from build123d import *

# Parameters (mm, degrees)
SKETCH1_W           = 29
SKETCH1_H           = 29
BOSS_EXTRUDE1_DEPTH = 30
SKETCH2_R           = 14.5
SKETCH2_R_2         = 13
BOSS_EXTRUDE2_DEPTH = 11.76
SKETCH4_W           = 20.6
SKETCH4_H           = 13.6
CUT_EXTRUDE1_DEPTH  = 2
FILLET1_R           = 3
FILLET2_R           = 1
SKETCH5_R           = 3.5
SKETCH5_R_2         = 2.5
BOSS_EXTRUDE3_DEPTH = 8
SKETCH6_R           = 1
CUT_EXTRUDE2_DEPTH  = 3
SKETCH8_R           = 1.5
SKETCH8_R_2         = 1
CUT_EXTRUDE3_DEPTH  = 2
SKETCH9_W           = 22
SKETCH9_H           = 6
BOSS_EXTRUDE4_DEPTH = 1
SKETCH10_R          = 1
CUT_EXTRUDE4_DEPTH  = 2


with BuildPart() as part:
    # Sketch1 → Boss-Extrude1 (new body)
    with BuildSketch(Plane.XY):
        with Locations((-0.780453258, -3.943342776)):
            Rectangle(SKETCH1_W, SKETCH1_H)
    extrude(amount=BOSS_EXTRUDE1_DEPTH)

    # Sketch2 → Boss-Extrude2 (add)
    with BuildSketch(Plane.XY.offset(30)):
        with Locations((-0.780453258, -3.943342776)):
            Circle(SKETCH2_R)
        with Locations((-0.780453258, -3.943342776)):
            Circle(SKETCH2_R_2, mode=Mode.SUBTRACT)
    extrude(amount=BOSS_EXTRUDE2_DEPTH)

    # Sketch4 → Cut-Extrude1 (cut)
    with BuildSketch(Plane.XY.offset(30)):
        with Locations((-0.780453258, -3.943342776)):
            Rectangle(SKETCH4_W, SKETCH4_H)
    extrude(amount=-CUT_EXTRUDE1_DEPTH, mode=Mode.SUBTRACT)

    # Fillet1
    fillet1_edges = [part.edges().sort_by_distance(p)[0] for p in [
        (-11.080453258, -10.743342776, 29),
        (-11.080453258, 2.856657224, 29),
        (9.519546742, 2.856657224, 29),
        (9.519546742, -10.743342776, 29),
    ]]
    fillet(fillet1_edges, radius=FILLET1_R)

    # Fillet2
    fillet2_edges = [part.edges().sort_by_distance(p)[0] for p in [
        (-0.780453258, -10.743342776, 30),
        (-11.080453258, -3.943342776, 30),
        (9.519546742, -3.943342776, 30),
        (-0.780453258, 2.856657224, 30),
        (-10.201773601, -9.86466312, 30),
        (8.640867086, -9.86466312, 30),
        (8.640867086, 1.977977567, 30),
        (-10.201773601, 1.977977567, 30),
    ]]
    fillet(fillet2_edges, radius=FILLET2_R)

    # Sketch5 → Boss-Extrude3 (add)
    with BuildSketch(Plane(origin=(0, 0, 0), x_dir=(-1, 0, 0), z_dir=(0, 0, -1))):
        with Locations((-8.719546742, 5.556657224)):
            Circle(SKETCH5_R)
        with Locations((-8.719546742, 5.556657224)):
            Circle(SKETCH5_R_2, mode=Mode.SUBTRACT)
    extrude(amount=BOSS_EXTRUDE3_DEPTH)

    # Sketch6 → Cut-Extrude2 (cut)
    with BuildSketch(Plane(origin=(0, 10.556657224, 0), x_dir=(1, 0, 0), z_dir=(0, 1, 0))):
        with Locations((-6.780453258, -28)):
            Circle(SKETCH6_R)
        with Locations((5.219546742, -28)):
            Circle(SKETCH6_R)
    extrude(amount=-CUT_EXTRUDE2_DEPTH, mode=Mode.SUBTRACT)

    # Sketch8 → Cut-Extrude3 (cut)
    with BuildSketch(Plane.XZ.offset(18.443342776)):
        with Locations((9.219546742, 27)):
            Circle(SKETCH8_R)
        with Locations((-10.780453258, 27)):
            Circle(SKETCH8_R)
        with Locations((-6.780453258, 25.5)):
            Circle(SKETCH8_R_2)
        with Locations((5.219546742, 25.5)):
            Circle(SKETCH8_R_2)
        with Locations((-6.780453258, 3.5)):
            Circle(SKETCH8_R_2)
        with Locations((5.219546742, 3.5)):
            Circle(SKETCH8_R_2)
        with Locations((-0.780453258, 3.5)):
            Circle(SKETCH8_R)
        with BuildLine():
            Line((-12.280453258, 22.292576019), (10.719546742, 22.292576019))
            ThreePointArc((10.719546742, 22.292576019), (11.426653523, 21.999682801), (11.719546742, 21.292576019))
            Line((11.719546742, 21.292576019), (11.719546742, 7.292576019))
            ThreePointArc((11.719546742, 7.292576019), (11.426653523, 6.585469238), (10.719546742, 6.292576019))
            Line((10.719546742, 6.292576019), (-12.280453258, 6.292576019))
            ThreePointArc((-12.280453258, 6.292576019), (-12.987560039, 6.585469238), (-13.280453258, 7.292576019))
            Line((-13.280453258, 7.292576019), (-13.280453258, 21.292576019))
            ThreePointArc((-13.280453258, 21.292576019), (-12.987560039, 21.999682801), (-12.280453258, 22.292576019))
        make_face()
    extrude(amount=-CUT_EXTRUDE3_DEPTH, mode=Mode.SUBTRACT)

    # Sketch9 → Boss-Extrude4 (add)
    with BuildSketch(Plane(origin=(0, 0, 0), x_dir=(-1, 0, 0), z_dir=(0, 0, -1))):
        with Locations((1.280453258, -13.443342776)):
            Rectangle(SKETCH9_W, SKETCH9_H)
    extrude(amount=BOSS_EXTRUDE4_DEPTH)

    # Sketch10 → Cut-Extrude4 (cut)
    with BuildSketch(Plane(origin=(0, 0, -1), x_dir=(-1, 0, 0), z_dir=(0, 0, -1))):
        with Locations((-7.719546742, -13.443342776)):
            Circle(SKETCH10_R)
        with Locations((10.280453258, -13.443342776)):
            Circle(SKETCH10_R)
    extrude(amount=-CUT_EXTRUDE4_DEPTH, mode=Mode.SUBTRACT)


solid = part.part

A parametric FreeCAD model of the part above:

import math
import FreeCAD as App
import Part
import Sketcher

V = App.Vector
Q = App.Units.Quantity


def edges_at(feature, points):
    """Names of the edges that pass closest to the given points."""
    edges = feature.Shape.Edges
    near = lambda p: min(range(len(edges)), key=lambda i: edges[i].distToShape(Part.Vertex(*p))[0])
    return sorted({f"Edge{near(p) + 1}" for p in points})

doc = App.newDocument("Part")
params = doc.addObject("Spreadsheet::Sheet", "Params")
for row, (alias, value) in enumerate([
    ("sketch1_width", "29 mm"),
    ("pad1_length", "30 mm"),
    ("sketch2_diameter", "29 mm"),
    ("sketch2_diameter2", "26 mm"),
    ("pad2_length", "11.76 mm"),
    ("sketch3_width", "20.6 mm"),
    ("sketch3_height", "13.6 mm"),
    ("pocket1_length", "2 mm"),
    ("fillet_radius", "3 mm"),
    ("fillet2_radius", "1 mm"),
    ("sketch4_diameter", "7 mm"),
    ("sketch4_diameter2", "5 mm"),
    ("pad3_length", "8 mm"),
    ("sketch5_diameter", "2 mm"),
    ("pocket2_length", "3 mm"),
    ("sketch6_diameter", "3 mm"),
    ("sketch6_diameter2", "2 mm"),
    ("sketch6_width", "23 mm"),
    ("sketch6_height", "14 mm"),
    ("pocket3_length", "2 mm"),
    ("sketch7_width", "22 mm"),
    ("sketch7_height", "6 mm"),
    ("pad4_length", "1 mm"),
    ("sketch8_diameter", "2 mm"),
    ("pocket4_length", "2 mm"),
], start=1):
    params.set(f"A{row}", alias)
    params.set(f"B{row}", "=" + value)
    params.setAlias(f"B{row}", alias)

body = doc.addObject("PartDesign::Body", "Body")

# Sketch on XY plane
sketch1 = body.newObject("Sketcher::SketchObject", "Sketch")
sketch1.AttachmentSupport = (doc.getObject("XY_Plane"), [""])
sketch1.MapMode = "FlatFace"
sketch1.addGeometry(Part.LineSegment(V(-15.280453, 10.556657, 0), V(-15.280453, -18.443343, 0)), False)
sketch1.addGeometry(Part.LineSegment(V(-15.280453, -18.443343, 0), V(13.719547, -18.443343, 0)), False)
sketch1.addGeometry(Part.LineSegment(V(13.719547, -18.443343, 0), V(13.719547, 10.556657, 0)), False)
sketch1.addGeometry(Part.LineSegment(V(13.719547, 10.556657, 0), V(-15.280453, 10.556657, 0)), False)
sketch1.addConstraint(Sketcher.Constraint("Coincident", 0, 2, 1, 1))
sketch1.addConstraint(Sketcher.Constraint("Coincident", 1, 2, 2, 1))
sketch1.addConstraint(Sketcher.Constraint("Coincident", 2, 2, 3, 1))
sketch1.addConstraint(Sketcher.Constraint("Coincident", 3, 2, 0, 1))
sketch1.addConstraint(Sketcher.Constraint("Vertical", 0))
sketch1.addConstraint(Sketcher.Constraint("Horizontal", 1))
sketch1.addConstraint(Sketcher.Constraint("Vertical", 2))
sketch1.addConstraint(Sketcher.Constraint("Horizontal", 3))
sketch1.addConstraint(Sketcher.Constraint("Equal", 3, 0))
sketch1.addConstraint(Sketcher.Constraint("DistanceX", 1, 1, 1, 2, Q("29 mm")))
sketch1.addConstraint(Sketcher.Constraint("DistanceX", 0, 2, -1, 1, Q("15.280453 mm")))
sketch1.addConstraint(Sketcher.Constraint("DistanceY", 0, 2, -1, 1, Q("18.443343 mm")))
sketch1.setExpression("Constraints[9]", "Params.sketch1_width")
pad1 = body.newObject("PartDesign::Pad", "Pad")
pad1.Profile = sketch1
pad1.setExpression("Length", "Params.pad1_length")

# Sketch on XY plane
sketch2 = body.newObject("Sketcher::SketchObject", "Sketch001")
sketch2.AttachmentSupport = (doc.getObject("XY_Plane"), [""])
sketch2.MapMode = "FlatFace"
sketch2.AttachmentOffset = App.Placement(V(0, 0, 30), App.Rotation())
sketch2.addGeometry(Part.Circle(V(-0.780453, -3.943343, 0), V(0, 0, 1), 14.5), False)
sketch2.addGeometry(Part.Circle(V(-0.780453, -3.943343, 0), V(0, 0, 1), 13), False)
sketch2.addConstraint(Sketcher.Constraint("Coincident", 1, 3, 0, 3))
sketch2.addConstraint(Sketcher.Constraint("Diameter", 0, Q("29 mm")))
sketch2.addConstraint(Sketcher.Constraint("Diameter", 1, Q("26 mm")))
sketch2.addConstraint(Sketcher.Constraint("DistanceX", 0, 3, -1, 1, Q("0.780453 mm")))
sketch2.addConstraint(Sketcher.Constraint("DistanceY", 0, 3, -1, 1, Q("3.943343 mm")))
sketch2.setExpression("Constraints[1]", "Params.sketch2_diameter")
sketch2.setExpression("Constraints[2]", "Params.sketch2_diameter2")
pad2 = body.newObject("PartDesign::Pad", "Pad001")
pad2.Profile = sketch2
pad2.setExpression("Length", "Params.pad2_length")

# Sketch on XY plane
sketch3 = body.newObject("Sketcher::SketchObject", "Sketch002")
sketch3.AttachmentSupport = (doc.getObject("XY_Plane"), [""])
sketch3.MapMode = "FlatFace"
sketch3.AttachmentOffset = App.Placement(V(0, 0, 30), App.Rotation())
sketch3.addGeometry(Part.LineSegment(V(-11.080453, 2.856657, 0), V(-11.080453, -10.743343, 0)), False)
sketch3.addGeometry(Part.LineSegment(V(-11.080453, -10.743343, 0), V(9.519547, -10.743343, 0)), False)
sketch3.addGeometry(Part.LineSegment(V(9.519547, -10.743343, 0), V(9.519547, 2.856657, 0)), False)
sketch3.addGeometry(Part.LineSegment(V(9.519547, 2.856657, 0), V(-11.080453, 2.856657, 0)), False)
sketch3.addConstraint(Sketcher.Constraint("Coincident", 0, 2, 1, 1))
sketch3.addConstraint(Sketcher.Constraint("Coincident", 1, 2, 2, 1))
sketch3.addConstraint(Sketcher.Constraint("Coincident", 2, 2, 3, 1))
sketch3.addConstraint(Sketcher.Constraint("Coincident", 3, 2, 0, 1))
sketch3.addConstraint(Sketcher.Constraint("Vertical", 0))
sketch3.addConstraint(Sketcher.Constraint("Horizontal", 1))
sketch3.addConstraint(Sketcher.Constraint("Vertical", 2))
sketch3.addConstraint(Sketcher.Constraint("Horizontal", 3))
sketch3.addConstraint(Sketcher.Constraint("DistanceX", 1, 1, 1, 2, Q("20.6 mm")))
sketch3.addConstraint(Sketcher.Constraint("DistanceY", 0, 2, 0, 1, Q("13.6 mm")))
sketch3.addConstraint(Sketcher.Constraint("DistanceX", 0, 2, -1, 1, Q("11.080453 mm")))
sketch3.addConstraint(Sketcher.Constraint("DistanceY", 0, 2, -1, 1, Q("10.743343 mm")))
sketch3.setExpression("Constraints[8]", "Params.sketch3_width")
sketch3.setExpression("Constraints[9]", "Params.sketch3_height")
pocket1 = body.newObject("PartDesign::Pocket", "Pocket")
pocket1.Profile = sketch3
pocket1.setExpression("Length", "Params.pocket1_length")
doc.recompute()

fillet = body.newObject("PartDesign::Fillet", "Fillet")
fillet.Base = (pocket1, edges_at(pocket1, [
    (-11.08, -10.743, 29),
    (-11.08, 2.857, 29),
    (9.52, 2.857, 29),
    (9.52, -10.743, 29),
]))
fillet.setExpression("Radius", "Params.fillet_radius")
doc.recompute()

fillet2 = body.newObject("PartDesign::Fillet", "Fillet001")
fillet2.Base = (fillet, edges_at(fillet, [
    (-0.78, -10.743, 30),
    (-11.08, -3.943, 30),
    (9.52, -3.943, 30),
    (-0.78, 2.857, 30),
    (-10.202, -9.865, 30),
    (8.641, -9.865, 30),
    (8.641, 1.978, 30),
    (-10.202, 1.978, 30),
]))
fillet2.setExpression("Radius", "Params.fillet2_radius")

# Sketch on XY plane
sketch4 = body.newObject("Sketcher::SketchObject", "Sketch003")
sketch4.AttachmentSupport = (doc.getObject("XY_Plane"), [""])
sketch4.MapMode = "FlatFace"
sketch4.addGeometry(Part.Circle(V(8.719547, 5.556657, 0), V(0, 0, 1), 3.5), False)
sketch4.addGeometry(Part.Circle(V(8.719547, 5.556657, 0), V(0, 0, 1), 2.5), False)
sketch4.addConstraint(Sketcher.Constraint("Coincident", 1, 3, 0, 3))
sketch4.addConstraint(Sketcher.Constraint("Diameter", 0, Q("7 mm")))
sketch4.addConstraint(Sketcher.Constraint("Diameter", 1, Q("5 mm")))
sketch4.addConstraint(Sketcher.Constraint("DistanceX", -1, 1, 0, 3, Q("8.719547 mm")))
sketch4.addConstraint(Sketcher.Constraint("DistanceY", -1, 1, 0, 3, Q("5.556657 mm")))
sketch4.setExpression("Constraints[1]", "Params.sketch4_diameter")
sketch4.setExpression("Constraints[2]", "Params.sketch4_diameter2")
pad3 = body.newObject("PartDesign::Pad", "Pad002")
pad3.Profile = sketch4
pad3.setExpression("Length", "Params.pad3_length")
pad3.Reversed = True

# Sketch on XZ plane
sketch5 = body.newObject("Sketcher::SketchObject", "Sketch004")
sketch5.AttachmentSupport = (doc.getObject("XZ_Plane"), [""])
sketch5.MapMode = "FlatFace"
sketch5.AttachmentOffset = App.Placement(V(0, 0, -10.556657), App.Rotation())
sketch5.addGeometry(Part.Circle(V(-6.780453, 28, 0), V(0, 0, 1), 1), False)
sketch5.addGeometry(Part.Circle(V(5.219547, 28, 0), V(0, 0, 1), 1), False)
sketch5.addConstraint(Sketcher.Constraint("Equal", 0, 1))
sketch5.addConstraint(Sketcher.Constraint("Horizontal", 0, 3, 1, 3))
sketch5.addConstraint(Sketcher.Constraint("Diameter", 0, Q("2 mm")))
sketch5.addConstraint(Sketcher.Constraint("DistanceY", -1, 1, 0, 3, Q("28 mm")))
sketch5.addConstraint(Sketcher.Constraint("DistanceX", 0, 3, 1, 3, Q("12 mm")))
sketch5.addConstraint(Sketcher.Constraint("DistanceX", 0, 3, -1, 1, Q("6.780453 mm")))
sketch5.setExpression("Constraints[2]", "Params.sketch5_diameter")
pocket2 = body.newObject("PartDesign::Pocket", "Pocket001")
pocket2.Profile = sketch5
pocket2.setExpression("Length", "Params.pocket2_length")
pocket2.Reversed = True

# Sketch on XZ plane
sketch6 = body.newObject("Sketcher::SketchObject", "Sketch005")
sketch6.AttachmentSupport = (doc.getObject("XZ_Plane"), [""])
sketch6.MapMode = "FlatFace"
sketch6.AttachmentOffset = App.Placement(V(0, 0, 18.443343), App.Rotation())
sketch6.addGeometry(Part.Circle(V(9.219547, 27, 0), V(0, 0, 1), 1.5), False)
sketch6.addGeometry(Part.Circle(V(-10.780453, 27, 0), V(0, 0, 1), 1.5), False)
sketch6.addGeometry(Part.Circle(V(-6.780453, 25.5, 0), V(0, 0, 1), 1), False)
sketch6.addGeometry(Part.Circle(V(5.219547, 25.5, 0), V(0, 0, 1), 1), False)
sketch6.addGeometry(Part.Circle(V(-6.780453, 3.5, 0), V(0, 0, 1), 1), False)
sketch6.addGeometry(Part.Circle(V(5.219547, 3.5, 0), V(0, 0, 1), 1), False)
sketch6.addGeometry(Part.Circle(V(-0.780453, 3.5, 0), V(0, 0, 1), 1.5), False)
sketch6.addGeometry(Part.LineSegment(V(10.719547, 22.292576, 0), V(-12.280453, 22.292576, 0)), False)
sketch6.addGeometry(Part.ArcOfCircle(Part.Circle(V(-12.280453, 21.292576, 0), V(0, 0, 1), 1), math.radians(90), math.radians(180)), False)
sketch6.addGeometry(Part.LineSegment(V(-13.280453, 21.292576, 0), V(-13.280453, 7.292576, 0)), False)
sketch6.addGeometry(Part.ArcOfCircle(Part.Circle(V(-12.280453, 7.292576, 0), V(0, 0, 1), 1), math.radians(-180), math.radians(-90)), False)
sketch6.addGeometry(Part.LineSegment(V(-12.280453, 6.292576, 0), V(10.719547, 6.292576, 0)), False)
sketch6.addGeometry(Part.ArcOfCircle(Part.Circle(V(10.719547, 7.292576, 0), V(0, 0, 1), 1), math.radians(-90), math.radians(0)), False)
sketch6.addGeometry(Part.LineSegment(V(11.719547, 7.292576, 0), V(11.719547, 21.292576, 0)), False)
sketch6.addGeometry(Part.ArcOfCircle(Part.Circle(V(10.719547, 21.292576, 0), V(0, 0, 1), 1), math.radians(0), math.radians(90)), False)
sketch6.addConstraint(Sketcher.Constraint("Tangent", 7, 2, 8, 1))
sketch6.addConstraint(Sketcher.Constraint("Tangent", 8, 2, 9, 1))
sketch6.addConstraint(Sketcher.Constraint("Tangent", 9, 2, 10, 1))
sketch6.addConstraint(Sketcher.Constraint("Tangent", 10, 2, 11, 1))
sketch6.addConstraint(Sketcher.Constraint("Tangent", 11, 2, 12, 1))
sketch6.addConstraint(Sketcher.Constraint("Tangent", 12, 2, 13, 1))
sketch6.addConstraint(Sketcher.Constraint("Tangent", 13, 2, 14, 1))
sketch6.addConstraint(Sketcher.Constraint("Tangent", 14, 2, 7, 1))
sketch6.addConstraint(Sketcher.Constraint("Horizontal", 7))
sketch6.addConstraint(Sketcher.Constraint("Vertical", 9))
sketch6.addConstraint(Sketcher.Constraint("Horizontal", 11))
sketch6.addConstraint(Sketcher.Constraint("Vertical", 13))
sketch6.addConstraint(Sketcher.Constraint("Equal", 0, 1))
sketch6.addConstraint(Sketcher.Constraint("Equal", 2, 3))
sketch6.addConstraint(Sketcher.Constraint("Equal", 3, 4))
sketch6.addConstraint(Sketcher.Constraint("Equal", 4, 5))
sketch6.addConstraint(Sketcher.Constraint("Equal", 1, 6))
sketch6.addConstraint(Sketcher.Constraint("Equal", 5, 8))
sketch6.addConstraint(Sketcher.Constraint("Equal", 8, 10))
sketch6.addConstraint(Sketcher.Constraint("Equal", 10, 12))
sketch6.addConstraint(Sketcher.Constraint("Equal", 12, 14))
sketch6.addConstraint(Sketcher.Constraint("Horizontal", 0, 3, 1, 3))
sketch6.addConstraint(Sketcher.Constraint("Horizontal", 2, 3, 3, 3))
sketch6.addConstraint(Sketcher.Constraint("Horizontal", 4, 3, 5, 3))
sketch6.addConstraint(Sketcher.Constraint("Horizontal", 5, 3, 6, 3))
sketch6.addConstraint(Sketcher.Constraint("Vertical", 2, 3, 4, 3))
sketch6.addConstraint(Sketcher.Constraint("Vertical", 3, 3, 5, 3))
sketch6.addConstraint(Sketcher.Constraint("Diameter", 0, Q("3 mm")))
sketch6.addConstraint(Sketcher.Constraint("Diameter", 2, Q("2 mm")))
sketch6.addConstraint(Sketcher.Constraint("DistanceX", 7, 2, 7, 1, Q("23 mm")))
sketch6.addConstraint(Sketcher.Constraint("DistanceY", 9, 2, 9, 1, Q("14 mm")))
sketch6.addConstraint(Sketcher.Constraint("DistanceY", -1, 1, 0, 3, Q("27 mm")))
sketch6.addConstraint(Sketcher.Constraint("DistanceX", 1, 3, 0, 3, Q("20 mm")))
sketch6.addConstraint(Sketcher.Constraint("DistanceX", 1, 3, 2, 3, Q("4 mm")))
sketch6.addConstraint(Sketcher.Constraint("DistanceX", 3, 3, 0, 3, Q("4 mm")))
sketch6.addConstraint(Sketcher.Constraint("DistanceY", 4, 3, 2, 3, Q("22 mm")))
sketch6.addConstraint(Sketcher.Constraint("DistanceX", 4, 3, 6, 3, Q("6 mm")))
sketch6.addConstraint(Sketcher.Constraint("DistanceY", -1, 1, 2, 3, Q("25.5 mm")))
sketch6.addConstraint(Sketcher.Constraint("DistanceX", 8, 3, 1, 3, Q("1.5 mm")))
sketch6.addConstraint(Sketcher.Constraint("DistanceX", -1, 1, 0, 3, Q("9.219547 mm")))
sketch6.addConstraint(Sketcher.Constraint("DistanceY", -1, 1, 8, 3, Q("21.292576 mm")))
sketch6.setExpression("Constraints[27]", "Params.sketch6_diameter")
sketch6.setExpression("Constraints[28]", "Params.sketch6_diameter2")
sketch6.setExpression("Constraints[29]", "Params.sketch6_width")
sketch6.setExpression("Constraints[30]", "Params.sketch6_height")
pocket3 = body.newObject("PartDesign::Pocket", "Pocket002")
pocket3.Profile = sketch6
pocket3.setExpression("Length", "Params.pocket3_length")

# Sketch on XY plane
sketch7 = body.newObject("Sketcher::SketchObject", "Sketch006")
sketch7.AttachmentSupport = (doc.getObject("XY_Plane"), [""])
sketch7.MapMode = "FlatFace"
sketch7.addGeometry(Part.LineSegment(V(9.719547, -10.443343, 0), V(9.719547, -16.443343, 0)), False)
sketch7.addGeometry(Part.LineSegment(V(9.719547, -16.443343, 0), V(-12.280453, -16.443343, 0)), False)
sketch7.addGeometry(Part.LineSegment(V(-12.280453, -16.443343, 0), V(-12.280453, -10.443343, 0)), False)
sketch7.addGeometry(Part.LineSegment(V(-12.280453, -10.443343, 0), V(9.719547, -10.443343, 0)), False)
sketch7.addConstraint(Sketcher.Constraint("Coincident", 0, 2, 1, 1))
sketch7.addConstraint(Sketcher.Constraint("Coincident", 1, 2, 2, 1))
sketch7.addConstraint(Sketcher.Constraint("Coincident", 2, 2, 3, 1))
sketch7.addConstraint(Sketcher.Constraint("Coincident", 3, 2, 0, 1))
sketch7.addConstraint(Sketcher.Constraint("Vertical", 0))
sketch7.addConstraint(Sketcher.Constraint("Horizontal", 1))
sketch7.addConstraint(Sketcher.Constraint("Vertical", 2))
sketch7.addConstraint(Sketcher.Constraint("Horizontal", 3))
sketch7.addConstraint(Sketcher.Constraint("DistanceX", 1, 2, 1, 1, Q("22 mm")))
sketch7.addConstraint(Sketcher.Constraint("DistanceY", 0, 2, 0, 1, Q("6 mm")))
sketch7.addConstraint(Sketcher.Constraint("DistanceX", -1, 1, 0, 2, Q("9.719547 mm")))
sketch7.addConstraint(Sketcher.Constraint("DistanceY", 0, 2, -1, 1, Q("16.443343 mm")))
sketch7.setExpression("Constraints[8]", "Params.sketch7_width")
sketch7.setExpression("Constraints[9]", "Params.sketch7_height")
pad4 = body.newObject("PartDesign::Pad", "Pad003")
pad4.Profile = sketch7
pad4.setExpression("Length", "Params.pad4_length")
pad4.Reversed = True

# Sketch on XY plane
sketch8 = body.newObject("Sketcher::SketchObject", "Sketch007")
sketch8.AttachmentSupport = (doc.getObject("XY_Plane"), [""])
sketch8.MapMode = "FlatFace"
sketch8.AttachmentOffset = App.Placement(V(0, 0, -1), App.Rotation())
sketch8.addGeometry(Part.Circle(V(7.719547, -13.443343, 0), V(0, 0, 1), 1), False)
sketch8.addGeometry(Part.Circle(V(-10.280453, -13.443343, 0), V(0, 0, 1), 1), False)
sketch8.addConstraint(Sketcher.Constraint("Equal", 0, 1))
sketch8.addConstraint(Sketcher.Constraint("Horizontal", 0, 3, 1, 3))
sketch8.addConstraint(Sketcher.Constraint("Diameter", 0, Q("2 mm")))
sketch8.addConstraint(Sketcher.Constraint("DistanceX", 1, 3, 0, 3, Q("18 mm")))
sketch8.addConstraint(Sketcher.Constraint("DistanceX", -1, 1, 0, 3, Q("7.719547 mm")))
sketch8.addConstraint(Sketcher.Constraint("DistanceY", 0, 3, -1, 1, Q("13.443343 mm")))
sketch8.setExpression("Constraints[2]", "Params.sketch8_diameter")
pocket4 = body.newObject("PartDesign::Pocket", "Pocket003")
pocket4.Profile = sketch8
pocket4.setExpression("Length", "Params.pocket4_length")
pocket4.Reversed = True

doc.recompute()
